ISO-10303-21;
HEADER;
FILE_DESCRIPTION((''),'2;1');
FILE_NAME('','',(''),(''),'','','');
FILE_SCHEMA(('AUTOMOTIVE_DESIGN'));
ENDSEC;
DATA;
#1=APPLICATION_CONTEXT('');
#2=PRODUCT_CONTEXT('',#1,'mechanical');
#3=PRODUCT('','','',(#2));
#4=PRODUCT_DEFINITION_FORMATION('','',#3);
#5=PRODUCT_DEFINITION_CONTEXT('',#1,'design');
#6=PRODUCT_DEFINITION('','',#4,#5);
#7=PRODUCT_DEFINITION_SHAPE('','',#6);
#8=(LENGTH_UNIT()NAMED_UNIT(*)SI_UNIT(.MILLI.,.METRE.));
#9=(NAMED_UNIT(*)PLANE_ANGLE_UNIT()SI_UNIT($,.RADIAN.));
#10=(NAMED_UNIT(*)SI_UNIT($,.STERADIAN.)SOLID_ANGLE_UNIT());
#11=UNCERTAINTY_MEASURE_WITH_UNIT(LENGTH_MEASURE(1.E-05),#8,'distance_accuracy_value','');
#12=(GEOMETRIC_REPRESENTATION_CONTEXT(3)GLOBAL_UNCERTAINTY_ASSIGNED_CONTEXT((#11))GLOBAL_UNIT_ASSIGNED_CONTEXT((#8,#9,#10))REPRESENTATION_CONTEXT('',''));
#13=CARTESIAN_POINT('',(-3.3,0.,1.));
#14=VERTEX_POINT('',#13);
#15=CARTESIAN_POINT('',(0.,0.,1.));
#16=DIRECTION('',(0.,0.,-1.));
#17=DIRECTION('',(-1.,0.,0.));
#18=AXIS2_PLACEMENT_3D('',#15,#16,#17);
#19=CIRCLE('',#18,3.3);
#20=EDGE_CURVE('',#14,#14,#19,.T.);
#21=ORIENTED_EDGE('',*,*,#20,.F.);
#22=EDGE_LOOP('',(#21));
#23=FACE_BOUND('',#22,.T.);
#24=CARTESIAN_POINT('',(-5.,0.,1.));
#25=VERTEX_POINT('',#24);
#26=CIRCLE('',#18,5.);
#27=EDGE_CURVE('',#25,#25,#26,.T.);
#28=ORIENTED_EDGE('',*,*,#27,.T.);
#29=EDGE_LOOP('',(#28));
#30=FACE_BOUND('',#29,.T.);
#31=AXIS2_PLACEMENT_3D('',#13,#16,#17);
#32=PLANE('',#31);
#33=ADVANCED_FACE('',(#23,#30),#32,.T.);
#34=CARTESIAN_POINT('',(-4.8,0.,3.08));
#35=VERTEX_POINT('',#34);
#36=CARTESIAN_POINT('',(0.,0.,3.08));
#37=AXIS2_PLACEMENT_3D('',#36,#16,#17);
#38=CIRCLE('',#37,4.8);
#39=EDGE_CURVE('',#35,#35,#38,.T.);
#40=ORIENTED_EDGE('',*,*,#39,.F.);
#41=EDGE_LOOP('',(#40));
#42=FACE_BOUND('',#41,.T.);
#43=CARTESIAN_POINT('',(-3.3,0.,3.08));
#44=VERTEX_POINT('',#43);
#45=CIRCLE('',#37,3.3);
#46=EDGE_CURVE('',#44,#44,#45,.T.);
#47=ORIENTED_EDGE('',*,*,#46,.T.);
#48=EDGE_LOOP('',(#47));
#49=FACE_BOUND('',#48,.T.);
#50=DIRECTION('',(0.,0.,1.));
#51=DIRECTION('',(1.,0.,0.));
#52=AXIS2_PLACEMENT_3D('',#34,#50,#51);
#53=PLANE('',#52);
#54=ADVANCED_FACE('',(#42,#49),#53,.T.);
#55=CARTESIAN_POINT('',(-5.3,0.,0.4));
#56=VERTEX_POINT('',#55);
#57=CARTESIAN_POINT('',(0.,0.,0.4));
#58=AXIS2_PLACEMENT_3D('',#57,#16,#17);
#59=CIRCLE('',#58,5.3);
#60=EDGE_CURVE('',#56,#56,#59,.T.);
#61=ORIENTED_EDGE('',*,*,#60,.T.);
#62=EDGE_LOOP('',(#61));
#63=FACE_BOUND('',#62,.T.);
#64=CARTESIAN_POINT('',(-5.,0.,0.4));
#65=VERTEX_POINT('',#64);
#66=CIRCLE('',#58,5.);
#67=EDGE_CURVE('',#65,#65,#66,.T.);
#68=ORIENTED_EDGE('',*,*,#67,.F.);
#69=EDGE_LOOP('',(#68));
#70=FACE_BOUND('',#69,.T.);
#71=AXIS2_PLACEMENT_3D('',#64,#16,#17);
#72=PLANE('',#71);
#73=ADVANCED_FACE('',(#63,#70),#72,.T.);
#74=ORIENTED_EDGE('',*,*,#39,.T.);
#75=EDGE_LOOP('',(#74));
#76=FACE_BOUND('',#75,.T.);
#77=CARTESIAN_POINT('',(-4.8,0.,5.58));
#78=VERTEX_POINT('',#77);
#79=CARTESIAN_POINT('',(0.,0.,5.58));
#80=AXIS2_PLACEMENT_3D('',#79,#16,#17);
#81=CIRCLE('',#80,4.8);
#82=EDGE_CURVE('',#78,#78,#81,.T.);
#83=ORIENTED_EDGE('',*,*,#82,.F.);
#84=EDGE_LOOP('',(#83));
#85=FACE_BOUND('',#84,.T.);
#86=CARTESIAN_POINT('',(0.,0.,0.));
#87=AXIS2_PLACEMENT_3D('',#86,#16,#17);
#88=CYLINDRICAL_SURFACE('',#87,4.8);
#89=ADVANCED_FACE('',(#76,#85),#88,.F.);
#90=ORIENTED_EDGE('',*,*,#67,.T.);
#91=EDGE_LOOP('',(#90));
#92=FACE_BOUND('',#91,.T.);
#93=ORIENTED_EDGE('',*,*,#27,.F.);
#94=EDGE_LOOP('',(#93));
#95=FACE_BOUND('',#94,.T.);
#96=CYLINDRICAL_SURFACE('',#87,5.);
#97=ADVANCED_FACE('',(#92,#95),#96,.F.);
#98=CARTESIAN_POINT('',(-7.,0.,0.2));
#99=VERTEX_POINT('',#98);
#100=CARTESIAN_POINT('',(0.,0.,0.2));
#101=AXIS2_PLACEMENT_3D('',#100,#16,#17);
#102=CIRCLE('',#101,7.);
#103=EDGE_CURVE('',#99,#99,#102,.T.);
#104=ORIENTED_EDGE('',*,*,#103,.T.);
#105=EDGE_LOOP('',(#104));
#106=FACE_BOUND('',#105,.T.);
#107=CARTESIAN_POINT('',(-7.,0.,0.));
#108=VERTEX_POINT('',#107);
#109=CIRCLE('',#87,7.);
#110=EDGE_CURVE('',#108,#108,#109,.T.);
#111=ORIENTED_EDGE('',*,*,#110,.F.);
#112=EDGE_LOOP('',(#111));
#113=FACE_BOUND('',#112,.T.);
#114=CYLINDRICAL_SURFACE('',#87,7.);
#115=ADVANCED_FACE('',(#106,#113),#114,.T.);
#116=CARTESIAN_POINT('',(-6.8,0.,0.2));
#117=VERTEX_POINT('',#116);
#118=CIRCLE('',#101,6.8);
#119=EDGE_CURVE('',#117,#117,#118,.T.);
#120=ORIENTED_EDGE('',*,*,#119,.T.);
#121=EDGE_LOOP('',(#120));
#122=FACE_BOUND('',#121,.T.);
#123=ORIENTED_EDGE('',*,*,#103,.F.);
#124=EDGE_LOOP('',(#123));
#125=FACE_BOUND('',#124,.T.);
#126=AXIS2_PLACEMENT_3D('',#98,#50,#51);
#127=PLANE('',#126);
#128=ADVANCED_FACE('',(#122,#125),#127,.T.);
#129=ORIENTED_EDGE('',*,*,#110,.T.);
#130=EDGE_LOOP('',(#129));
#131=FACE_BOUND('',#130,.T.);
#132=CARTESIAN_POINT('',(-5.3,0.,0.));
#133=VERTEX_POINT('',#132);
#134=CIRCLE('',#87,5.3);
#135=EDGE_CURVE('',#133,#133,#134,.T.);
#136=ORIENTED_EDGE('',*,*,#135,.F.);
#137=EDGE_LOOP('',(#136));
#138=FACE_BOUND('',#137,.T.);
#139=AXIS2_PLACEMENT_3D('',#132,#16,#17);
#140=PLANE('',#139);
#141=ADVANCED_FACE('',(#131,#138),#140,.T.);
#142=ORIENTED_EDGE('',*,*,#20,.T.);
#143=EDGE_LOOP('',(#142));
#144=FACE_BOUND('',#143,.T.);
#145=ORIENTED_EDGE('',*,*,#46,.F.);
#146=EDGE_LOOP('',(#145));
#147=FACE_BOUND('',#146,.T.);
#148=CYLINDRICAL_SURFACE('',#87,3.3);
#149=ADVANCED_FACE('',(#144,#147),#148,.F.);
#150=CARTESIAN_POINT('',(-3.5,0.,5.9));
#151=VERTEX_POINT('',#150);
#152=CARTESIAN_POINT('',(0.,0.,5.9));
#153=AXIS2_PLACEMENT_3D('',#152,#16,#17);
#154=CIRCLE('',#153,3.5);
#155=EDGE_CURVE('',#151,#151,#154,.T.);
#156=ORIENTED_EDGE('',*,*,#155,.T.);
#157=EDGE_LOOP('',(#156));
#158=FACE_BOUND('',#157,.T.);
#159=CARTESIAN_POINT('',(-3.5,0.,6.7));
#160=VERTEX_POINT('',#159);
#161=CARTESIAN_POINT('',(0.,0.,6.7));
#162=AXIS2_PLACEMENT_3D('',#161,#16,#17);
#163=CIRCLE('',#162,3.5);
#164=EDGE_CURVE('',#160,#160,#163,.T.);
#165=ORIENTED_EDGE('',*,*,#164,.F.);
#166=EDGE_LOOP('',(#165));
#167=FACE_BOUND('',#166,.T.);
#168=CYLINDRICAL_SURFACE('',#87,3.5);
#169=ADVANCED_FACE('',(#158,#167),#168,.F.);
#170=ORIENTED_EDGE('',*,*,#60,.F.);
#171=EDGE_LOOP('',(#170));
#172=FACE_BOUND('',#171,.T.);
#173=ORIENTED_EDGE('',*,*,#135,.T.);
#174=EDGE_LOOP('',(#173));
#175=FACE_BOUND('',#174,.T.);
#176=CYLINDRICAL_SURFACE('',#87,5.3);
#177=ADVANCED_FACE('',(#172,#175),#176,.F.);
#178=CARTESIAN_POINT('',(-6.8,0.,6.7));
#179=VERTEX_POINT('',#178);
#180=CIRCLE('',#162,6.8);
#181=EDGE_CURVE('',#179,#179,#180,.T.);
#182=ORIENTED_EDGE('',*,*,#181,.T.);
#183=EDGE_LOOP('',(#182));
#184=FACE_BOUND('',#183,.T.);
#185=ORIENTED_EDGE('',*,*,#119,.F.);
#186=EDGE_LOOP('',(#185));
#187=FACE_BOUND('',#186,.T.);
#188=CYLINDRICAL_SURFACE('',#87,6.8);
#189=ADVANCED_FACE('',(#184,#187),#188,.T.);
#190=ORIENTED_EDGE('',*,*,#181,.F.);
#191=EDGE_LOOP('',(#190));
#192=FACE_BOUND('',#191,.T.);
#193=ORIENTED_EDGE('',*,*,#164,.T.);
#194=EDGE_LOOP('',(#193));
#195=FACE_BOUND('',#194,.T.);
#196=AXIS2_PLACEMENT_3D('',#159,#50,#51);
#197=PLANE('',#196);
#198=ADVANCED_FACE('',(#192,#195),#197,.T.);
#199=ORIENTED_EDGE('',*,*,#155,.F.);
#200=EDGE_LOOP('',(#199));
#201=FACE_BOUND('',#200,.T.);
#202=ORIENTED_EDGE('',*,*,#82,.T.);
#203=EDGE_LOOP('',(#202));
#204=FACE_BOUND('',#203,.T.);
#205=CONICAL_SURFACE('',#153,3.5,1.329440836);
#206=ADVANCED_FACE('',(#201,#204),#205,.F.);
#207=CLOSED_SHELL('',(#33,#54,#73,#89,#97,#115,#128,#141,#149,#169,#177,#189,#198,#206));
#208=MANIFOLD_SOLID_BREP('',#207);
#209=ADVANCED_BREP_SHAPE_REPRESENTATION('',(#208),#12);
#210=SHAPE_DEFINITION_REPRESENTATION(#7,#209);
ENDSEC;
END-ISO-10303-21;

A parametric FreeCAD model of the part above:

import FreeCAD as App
import Part
import Sketcher

V = App.Vector
Q = App.Units.Quantity

doc = App.newDocument("Part")
body = doc.addObject("PartDesign::Body", "Body")

# Sketch on XZ plane
sketch1 = doc.addObject("Sketcher::SketchObject", "Sketch")
body.addObject(sketch1)
sketch1.AttachmentSupport = (doc.XZ_Plane, [""])
sketch1.MapMode = "FlatFace"
sketch1.addGeometry(Part.LineSegment(V(-3.5, 6.7, 0), V(-3.5, 5.9, 0)), False)
sketch1.addGeometry(Part.LineSegment(V(-3.5, 5.9, 0), V(-4.8, 5.58, 0)), False)
sketch1.addGeometry(Part.LineSegment(V(-4.8, 5.58, 0), V(-4.8, 3.08, 0)), False)
sketch1.addGeometry(Part.LineSegment(V(-4.8, 3.08, 0), V(-3.3, 3.08, 0)), False)
sketch1.addGeometry(Part.LineSegment(V(-3.3, 3.08, 0), V(-3.3, 1, 0)), False)
sketch1.addGeometry(Part.LineSegment(V(-3.3, 1, 0), V(-5, 1, 0)), False)
sketch1.addGeometry(Part.LineSegment(V(-5, 1, 0), V(-5, 0.4, 0)), False)
sketch1.addGeometry(Part.LineSegment(V(-5, 0.4, 0), V(-5.3, 0.4, 0)), False)
sketch1.addGeometry(Part.LineSegment(V(-5.3, 0.4, 0), V(-5.3, 0, 0)), False)
sketch1.addGeometry(Part.LineSegment(V(-5.3, 0, 0), V(-7, 0, 0)), False)
sketch1.addGeometry(Part.LineSegment(V(-7, 0, 0), V(-7, 0.2, 0)), False)
sketch1.addGeometry(Part.LineSegment(V(-7, 0.2, 0), V(-6.8, 0.2, 0)), False)
sketch1.addGeometry(Part.LineSegment(V(-6.8, 0.2, 0), V(-6.8, 6.7, 0)), False)
sketch1.addGeometry(Part.LineSegment(V(-6.8, 6.7, 0), V(-3.5, 6.7, 0)), False)
sketch1.addConstraint(Sketcher.Constraint("Coincident", 0, 2, 1, 1))
sketch1.addConstraint(Sketcher.Constraint("Coincident", 1, 2, 2, 1))
sketch1.addConstraint(Sketcher.Constraint("Coincident", 2, 2, 3, 1))
sketch1.addConstraint(Sketcher.Constraint("Coincident", 3, 2, 4, 1))
sketch1.addConstraint(Sketcher.Constraint("Coincident", 4, 2, 5, 1))
sketch1.addConstraint(Sketcher.Constraint("Coincident", 5, 2, 6, 1))
sketch1.addConstraint(Sketcher.Constraint("Coincident", 6, 2, 7, 1))
sketch1.addConstraint(Sketcher.Constraint("Coincident", 7, 2, 8, 1))
sketch1.addConstraint(Sketcher.Constraint("Coincident", 8, 2, 9, 1))
sketch1.addConstraint(Sketcher.Constraint("Coincident", 9, 2, 10, 1))
sketch1.addConstraint(Sketcher.Constraint("Coincident", 10, 2, 11, 1))
sketch1.addConstraint(Sketcher.Constraint("Coincident", 11, 2, 12, 1))
sketch1.addConstraint(Sketcher.Constraint("Coincident", 12, 2, 13, 1))
sketch1.addConstraint(Sketcher.Constraint("Coincident", 13, 2, 0, 1))
sketch1.addConstraint(Sketcher.Constraint("Vertical", 0))
sketch1.addConstraint(Sketcher.Constraint("Vertical", 2))
sketch1.addConstraint(Sketcher.Constraint("Horizontal", 3))
sketch1.addConstraint(Sketcher.Constraint("Vertical", 4))
sketch1.addConstraint(Sketcher.Constraint("Horizontal", 5))
sketch1.addConstraint(Sketcher.Constraint("Vertical", 6))
sketch1.addConstraint(Sketcher.Constraint("Horizontal", 7))
sketch1.addConstraint(Sketcher.Constraint("Vertical", 8))
sketch1.addConstraint(Sketcher.Constraint("Horizontal", 9))
sketch1.addConstraint(Sketcher.Constraint("Vertical", 10))
sketch1.addConstraint(Sketcher.Constraint("Horizontal", 11))
sketch1.addConstraint(Sketcher.Constraint("Vertical", 12))
sketch1.addConstraint(Sketcher.Constraint("Horizontal", 13))
sketch1.addConstraint(Sketcher.Constraint("PointOnObject", 8, 2, -1))
sketch1.addConstraint(Sketcher.Constraint("Equal", 5, 9))
sketch1.addConstraint(Sketcher.Constraint("Equal", 11, 10))
sketch1.addConstraint(Sketcher.Constraint("DistanceX", 3, 1, 3, 2, Q("1.5 mm")))
sketch1.addConstraint(Sketcher.Constraint("DistanceX", 5, 2, 5, 1, Q("1.7 mm")))
sketch1.addConstraint(Sketcher.Constraint("DistanceX", 7, 2, 7, 1, Q("0.3 mm")))
sketch1.addConstraint(Sketcher.Constraint("DistanceX", 11, 1, 11, 2, Q("0.2 mm")))
sketch1.addConstraint(Sketcher.Constraint("DistanceX", 13, 1, 13, 2, Q("3.3 mm")))
sketch1.addConstraint(Sketcher.Constraint("DistanceY", 0, 2, 0, 1, Q("0.8 mm")))
sketch1.addConstraint(Sketcher.Constraint("DistanceY", 2, 2, 2, 1, Q("2.5 mm")))
sketch1.addConstraint(Sketcher.Constraint("DistanceY", 6, 2, 6, 1, Q("0.6 mm")))
sketch1.addConstraint(Sketcher.Constraint("DistanceY", 8, 2, 8, 1, Q("0.4 mm")))
sketch1.addConstraint(Sketcher.Constraint("DistanceY", 12, 1, 12, 2, Q("6.5 mm")))
sketch1.addConstraint(Sketcher.Constraint("DistanceX", 5, 2, -1, 1, Q("5 mm")))
sketch1.addConstraint(Sketcher.Constraint("DistanceY", 4, 2, 4, 1, Q("2.08 mm")))
revolution = doc.addObject("PartDesign::Revolution", "Revolution")
body.addObject(revolution)
revolution.Profile = sketch1
revolution.ReferenceAxis = (sketch1, ["V_Axis"])
revolution.Angle = 360

doc.recompute()
